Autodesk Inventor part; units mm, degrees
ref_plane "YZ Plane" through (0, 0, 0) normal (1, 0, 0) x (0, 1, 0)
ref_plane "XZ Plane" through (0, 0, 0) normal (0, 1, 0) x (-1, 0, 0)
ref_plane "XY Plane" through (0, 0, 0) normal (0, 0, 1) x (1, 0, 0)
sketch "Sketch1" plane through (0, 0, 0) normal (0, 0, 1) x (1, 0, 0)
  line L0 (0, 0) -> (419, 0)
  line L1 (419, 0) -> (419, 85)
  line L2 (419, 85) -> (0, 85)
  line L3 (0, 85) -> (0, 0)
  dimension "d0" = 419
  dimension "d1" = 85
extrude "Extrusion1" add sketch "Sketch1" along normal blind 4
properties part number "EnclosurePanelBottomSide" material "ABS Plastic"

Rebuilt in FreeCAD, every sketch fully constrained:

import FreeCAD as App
import Part
import Sketcher
from FreeCAD import Vector
Q = App.Units.Quantity

doc = App.newDocument("Part")
params = doc.addObject("Spreadsheet::Sheet", "Params")
for row, (alias, value) in enumerate([
    ("sketch1_width", "419 mm"),
    ("sketch1_height", "85 mm"),
    ("pad1_length", "4 mm"),
], start=1):
    params.set(f"A{row}", alias)
    params.set(f"B{row}", "=" + value)
    params.setAlias(f"B{row}", alias)

body = doc.addObject("PartDesign::Body", "Body")

sketch1 = body.newObject("Sketcher::SketchObject", "Sketch")
sketch1.AttachmentSupport = (doc.getObject("XY_Plane"), [""])
sketch1.MapMode = "FlatFace"
sketch1.addGeometry([
    Part.LineSegment(Vector(0, 85, 0), Vector(0, 0, 0)),
    Part.LineSegment(Vector(0, 0, 0), Vector(419, 0, 0)),
    Part.LineSegment(Vector(419, 0, 0), Vector(419, 85, 0)),
    Part.LineSegment(Vector(419, 85, 0), Vector(0, 85, 0)),
], False)
sketch1.addConstraint([
    Sketcher.Constraint("Coincident", 0, 2, 1, 1),
    Sketcher.Constraint("Coincident", 1, 2, 2, 1),
    Sketcher.Constraint("Coincident", 2, 2, 3, 1),
    Sketcher.Constraint("Coincident", 3, 2, 0, 1),
    Sketcher.Constraint("Vertical", 0),
    Sketcher.Constraint("Horizontal", 1),
    Sketcher.Constraint("Vertical", 2),
    Sketcher.Constraint("Horizontal", 3),
    Sketcher.Constraint("Coincident", 0, 2, -1, 1),
    Sketcher.Constraint("DistanceX", 1, 1, 1, 2, Q("419 mm")),
    Sketcher.Constraint("DistanceY", 0, 2, 0, 1, Q("85 mm")),
])
sketch1.setExpression("Constraints[9]", "Params.sketch1_width")
sketch1.setExpression("Constraints[10]", "Params.sketch1_height")
pad1 = body.newObject("PartDesign::Pad", "Pad")
pad1.Profile = sketch1
pad1.setExpression("Length", "Params.pad1_length")

doc.recompute()
